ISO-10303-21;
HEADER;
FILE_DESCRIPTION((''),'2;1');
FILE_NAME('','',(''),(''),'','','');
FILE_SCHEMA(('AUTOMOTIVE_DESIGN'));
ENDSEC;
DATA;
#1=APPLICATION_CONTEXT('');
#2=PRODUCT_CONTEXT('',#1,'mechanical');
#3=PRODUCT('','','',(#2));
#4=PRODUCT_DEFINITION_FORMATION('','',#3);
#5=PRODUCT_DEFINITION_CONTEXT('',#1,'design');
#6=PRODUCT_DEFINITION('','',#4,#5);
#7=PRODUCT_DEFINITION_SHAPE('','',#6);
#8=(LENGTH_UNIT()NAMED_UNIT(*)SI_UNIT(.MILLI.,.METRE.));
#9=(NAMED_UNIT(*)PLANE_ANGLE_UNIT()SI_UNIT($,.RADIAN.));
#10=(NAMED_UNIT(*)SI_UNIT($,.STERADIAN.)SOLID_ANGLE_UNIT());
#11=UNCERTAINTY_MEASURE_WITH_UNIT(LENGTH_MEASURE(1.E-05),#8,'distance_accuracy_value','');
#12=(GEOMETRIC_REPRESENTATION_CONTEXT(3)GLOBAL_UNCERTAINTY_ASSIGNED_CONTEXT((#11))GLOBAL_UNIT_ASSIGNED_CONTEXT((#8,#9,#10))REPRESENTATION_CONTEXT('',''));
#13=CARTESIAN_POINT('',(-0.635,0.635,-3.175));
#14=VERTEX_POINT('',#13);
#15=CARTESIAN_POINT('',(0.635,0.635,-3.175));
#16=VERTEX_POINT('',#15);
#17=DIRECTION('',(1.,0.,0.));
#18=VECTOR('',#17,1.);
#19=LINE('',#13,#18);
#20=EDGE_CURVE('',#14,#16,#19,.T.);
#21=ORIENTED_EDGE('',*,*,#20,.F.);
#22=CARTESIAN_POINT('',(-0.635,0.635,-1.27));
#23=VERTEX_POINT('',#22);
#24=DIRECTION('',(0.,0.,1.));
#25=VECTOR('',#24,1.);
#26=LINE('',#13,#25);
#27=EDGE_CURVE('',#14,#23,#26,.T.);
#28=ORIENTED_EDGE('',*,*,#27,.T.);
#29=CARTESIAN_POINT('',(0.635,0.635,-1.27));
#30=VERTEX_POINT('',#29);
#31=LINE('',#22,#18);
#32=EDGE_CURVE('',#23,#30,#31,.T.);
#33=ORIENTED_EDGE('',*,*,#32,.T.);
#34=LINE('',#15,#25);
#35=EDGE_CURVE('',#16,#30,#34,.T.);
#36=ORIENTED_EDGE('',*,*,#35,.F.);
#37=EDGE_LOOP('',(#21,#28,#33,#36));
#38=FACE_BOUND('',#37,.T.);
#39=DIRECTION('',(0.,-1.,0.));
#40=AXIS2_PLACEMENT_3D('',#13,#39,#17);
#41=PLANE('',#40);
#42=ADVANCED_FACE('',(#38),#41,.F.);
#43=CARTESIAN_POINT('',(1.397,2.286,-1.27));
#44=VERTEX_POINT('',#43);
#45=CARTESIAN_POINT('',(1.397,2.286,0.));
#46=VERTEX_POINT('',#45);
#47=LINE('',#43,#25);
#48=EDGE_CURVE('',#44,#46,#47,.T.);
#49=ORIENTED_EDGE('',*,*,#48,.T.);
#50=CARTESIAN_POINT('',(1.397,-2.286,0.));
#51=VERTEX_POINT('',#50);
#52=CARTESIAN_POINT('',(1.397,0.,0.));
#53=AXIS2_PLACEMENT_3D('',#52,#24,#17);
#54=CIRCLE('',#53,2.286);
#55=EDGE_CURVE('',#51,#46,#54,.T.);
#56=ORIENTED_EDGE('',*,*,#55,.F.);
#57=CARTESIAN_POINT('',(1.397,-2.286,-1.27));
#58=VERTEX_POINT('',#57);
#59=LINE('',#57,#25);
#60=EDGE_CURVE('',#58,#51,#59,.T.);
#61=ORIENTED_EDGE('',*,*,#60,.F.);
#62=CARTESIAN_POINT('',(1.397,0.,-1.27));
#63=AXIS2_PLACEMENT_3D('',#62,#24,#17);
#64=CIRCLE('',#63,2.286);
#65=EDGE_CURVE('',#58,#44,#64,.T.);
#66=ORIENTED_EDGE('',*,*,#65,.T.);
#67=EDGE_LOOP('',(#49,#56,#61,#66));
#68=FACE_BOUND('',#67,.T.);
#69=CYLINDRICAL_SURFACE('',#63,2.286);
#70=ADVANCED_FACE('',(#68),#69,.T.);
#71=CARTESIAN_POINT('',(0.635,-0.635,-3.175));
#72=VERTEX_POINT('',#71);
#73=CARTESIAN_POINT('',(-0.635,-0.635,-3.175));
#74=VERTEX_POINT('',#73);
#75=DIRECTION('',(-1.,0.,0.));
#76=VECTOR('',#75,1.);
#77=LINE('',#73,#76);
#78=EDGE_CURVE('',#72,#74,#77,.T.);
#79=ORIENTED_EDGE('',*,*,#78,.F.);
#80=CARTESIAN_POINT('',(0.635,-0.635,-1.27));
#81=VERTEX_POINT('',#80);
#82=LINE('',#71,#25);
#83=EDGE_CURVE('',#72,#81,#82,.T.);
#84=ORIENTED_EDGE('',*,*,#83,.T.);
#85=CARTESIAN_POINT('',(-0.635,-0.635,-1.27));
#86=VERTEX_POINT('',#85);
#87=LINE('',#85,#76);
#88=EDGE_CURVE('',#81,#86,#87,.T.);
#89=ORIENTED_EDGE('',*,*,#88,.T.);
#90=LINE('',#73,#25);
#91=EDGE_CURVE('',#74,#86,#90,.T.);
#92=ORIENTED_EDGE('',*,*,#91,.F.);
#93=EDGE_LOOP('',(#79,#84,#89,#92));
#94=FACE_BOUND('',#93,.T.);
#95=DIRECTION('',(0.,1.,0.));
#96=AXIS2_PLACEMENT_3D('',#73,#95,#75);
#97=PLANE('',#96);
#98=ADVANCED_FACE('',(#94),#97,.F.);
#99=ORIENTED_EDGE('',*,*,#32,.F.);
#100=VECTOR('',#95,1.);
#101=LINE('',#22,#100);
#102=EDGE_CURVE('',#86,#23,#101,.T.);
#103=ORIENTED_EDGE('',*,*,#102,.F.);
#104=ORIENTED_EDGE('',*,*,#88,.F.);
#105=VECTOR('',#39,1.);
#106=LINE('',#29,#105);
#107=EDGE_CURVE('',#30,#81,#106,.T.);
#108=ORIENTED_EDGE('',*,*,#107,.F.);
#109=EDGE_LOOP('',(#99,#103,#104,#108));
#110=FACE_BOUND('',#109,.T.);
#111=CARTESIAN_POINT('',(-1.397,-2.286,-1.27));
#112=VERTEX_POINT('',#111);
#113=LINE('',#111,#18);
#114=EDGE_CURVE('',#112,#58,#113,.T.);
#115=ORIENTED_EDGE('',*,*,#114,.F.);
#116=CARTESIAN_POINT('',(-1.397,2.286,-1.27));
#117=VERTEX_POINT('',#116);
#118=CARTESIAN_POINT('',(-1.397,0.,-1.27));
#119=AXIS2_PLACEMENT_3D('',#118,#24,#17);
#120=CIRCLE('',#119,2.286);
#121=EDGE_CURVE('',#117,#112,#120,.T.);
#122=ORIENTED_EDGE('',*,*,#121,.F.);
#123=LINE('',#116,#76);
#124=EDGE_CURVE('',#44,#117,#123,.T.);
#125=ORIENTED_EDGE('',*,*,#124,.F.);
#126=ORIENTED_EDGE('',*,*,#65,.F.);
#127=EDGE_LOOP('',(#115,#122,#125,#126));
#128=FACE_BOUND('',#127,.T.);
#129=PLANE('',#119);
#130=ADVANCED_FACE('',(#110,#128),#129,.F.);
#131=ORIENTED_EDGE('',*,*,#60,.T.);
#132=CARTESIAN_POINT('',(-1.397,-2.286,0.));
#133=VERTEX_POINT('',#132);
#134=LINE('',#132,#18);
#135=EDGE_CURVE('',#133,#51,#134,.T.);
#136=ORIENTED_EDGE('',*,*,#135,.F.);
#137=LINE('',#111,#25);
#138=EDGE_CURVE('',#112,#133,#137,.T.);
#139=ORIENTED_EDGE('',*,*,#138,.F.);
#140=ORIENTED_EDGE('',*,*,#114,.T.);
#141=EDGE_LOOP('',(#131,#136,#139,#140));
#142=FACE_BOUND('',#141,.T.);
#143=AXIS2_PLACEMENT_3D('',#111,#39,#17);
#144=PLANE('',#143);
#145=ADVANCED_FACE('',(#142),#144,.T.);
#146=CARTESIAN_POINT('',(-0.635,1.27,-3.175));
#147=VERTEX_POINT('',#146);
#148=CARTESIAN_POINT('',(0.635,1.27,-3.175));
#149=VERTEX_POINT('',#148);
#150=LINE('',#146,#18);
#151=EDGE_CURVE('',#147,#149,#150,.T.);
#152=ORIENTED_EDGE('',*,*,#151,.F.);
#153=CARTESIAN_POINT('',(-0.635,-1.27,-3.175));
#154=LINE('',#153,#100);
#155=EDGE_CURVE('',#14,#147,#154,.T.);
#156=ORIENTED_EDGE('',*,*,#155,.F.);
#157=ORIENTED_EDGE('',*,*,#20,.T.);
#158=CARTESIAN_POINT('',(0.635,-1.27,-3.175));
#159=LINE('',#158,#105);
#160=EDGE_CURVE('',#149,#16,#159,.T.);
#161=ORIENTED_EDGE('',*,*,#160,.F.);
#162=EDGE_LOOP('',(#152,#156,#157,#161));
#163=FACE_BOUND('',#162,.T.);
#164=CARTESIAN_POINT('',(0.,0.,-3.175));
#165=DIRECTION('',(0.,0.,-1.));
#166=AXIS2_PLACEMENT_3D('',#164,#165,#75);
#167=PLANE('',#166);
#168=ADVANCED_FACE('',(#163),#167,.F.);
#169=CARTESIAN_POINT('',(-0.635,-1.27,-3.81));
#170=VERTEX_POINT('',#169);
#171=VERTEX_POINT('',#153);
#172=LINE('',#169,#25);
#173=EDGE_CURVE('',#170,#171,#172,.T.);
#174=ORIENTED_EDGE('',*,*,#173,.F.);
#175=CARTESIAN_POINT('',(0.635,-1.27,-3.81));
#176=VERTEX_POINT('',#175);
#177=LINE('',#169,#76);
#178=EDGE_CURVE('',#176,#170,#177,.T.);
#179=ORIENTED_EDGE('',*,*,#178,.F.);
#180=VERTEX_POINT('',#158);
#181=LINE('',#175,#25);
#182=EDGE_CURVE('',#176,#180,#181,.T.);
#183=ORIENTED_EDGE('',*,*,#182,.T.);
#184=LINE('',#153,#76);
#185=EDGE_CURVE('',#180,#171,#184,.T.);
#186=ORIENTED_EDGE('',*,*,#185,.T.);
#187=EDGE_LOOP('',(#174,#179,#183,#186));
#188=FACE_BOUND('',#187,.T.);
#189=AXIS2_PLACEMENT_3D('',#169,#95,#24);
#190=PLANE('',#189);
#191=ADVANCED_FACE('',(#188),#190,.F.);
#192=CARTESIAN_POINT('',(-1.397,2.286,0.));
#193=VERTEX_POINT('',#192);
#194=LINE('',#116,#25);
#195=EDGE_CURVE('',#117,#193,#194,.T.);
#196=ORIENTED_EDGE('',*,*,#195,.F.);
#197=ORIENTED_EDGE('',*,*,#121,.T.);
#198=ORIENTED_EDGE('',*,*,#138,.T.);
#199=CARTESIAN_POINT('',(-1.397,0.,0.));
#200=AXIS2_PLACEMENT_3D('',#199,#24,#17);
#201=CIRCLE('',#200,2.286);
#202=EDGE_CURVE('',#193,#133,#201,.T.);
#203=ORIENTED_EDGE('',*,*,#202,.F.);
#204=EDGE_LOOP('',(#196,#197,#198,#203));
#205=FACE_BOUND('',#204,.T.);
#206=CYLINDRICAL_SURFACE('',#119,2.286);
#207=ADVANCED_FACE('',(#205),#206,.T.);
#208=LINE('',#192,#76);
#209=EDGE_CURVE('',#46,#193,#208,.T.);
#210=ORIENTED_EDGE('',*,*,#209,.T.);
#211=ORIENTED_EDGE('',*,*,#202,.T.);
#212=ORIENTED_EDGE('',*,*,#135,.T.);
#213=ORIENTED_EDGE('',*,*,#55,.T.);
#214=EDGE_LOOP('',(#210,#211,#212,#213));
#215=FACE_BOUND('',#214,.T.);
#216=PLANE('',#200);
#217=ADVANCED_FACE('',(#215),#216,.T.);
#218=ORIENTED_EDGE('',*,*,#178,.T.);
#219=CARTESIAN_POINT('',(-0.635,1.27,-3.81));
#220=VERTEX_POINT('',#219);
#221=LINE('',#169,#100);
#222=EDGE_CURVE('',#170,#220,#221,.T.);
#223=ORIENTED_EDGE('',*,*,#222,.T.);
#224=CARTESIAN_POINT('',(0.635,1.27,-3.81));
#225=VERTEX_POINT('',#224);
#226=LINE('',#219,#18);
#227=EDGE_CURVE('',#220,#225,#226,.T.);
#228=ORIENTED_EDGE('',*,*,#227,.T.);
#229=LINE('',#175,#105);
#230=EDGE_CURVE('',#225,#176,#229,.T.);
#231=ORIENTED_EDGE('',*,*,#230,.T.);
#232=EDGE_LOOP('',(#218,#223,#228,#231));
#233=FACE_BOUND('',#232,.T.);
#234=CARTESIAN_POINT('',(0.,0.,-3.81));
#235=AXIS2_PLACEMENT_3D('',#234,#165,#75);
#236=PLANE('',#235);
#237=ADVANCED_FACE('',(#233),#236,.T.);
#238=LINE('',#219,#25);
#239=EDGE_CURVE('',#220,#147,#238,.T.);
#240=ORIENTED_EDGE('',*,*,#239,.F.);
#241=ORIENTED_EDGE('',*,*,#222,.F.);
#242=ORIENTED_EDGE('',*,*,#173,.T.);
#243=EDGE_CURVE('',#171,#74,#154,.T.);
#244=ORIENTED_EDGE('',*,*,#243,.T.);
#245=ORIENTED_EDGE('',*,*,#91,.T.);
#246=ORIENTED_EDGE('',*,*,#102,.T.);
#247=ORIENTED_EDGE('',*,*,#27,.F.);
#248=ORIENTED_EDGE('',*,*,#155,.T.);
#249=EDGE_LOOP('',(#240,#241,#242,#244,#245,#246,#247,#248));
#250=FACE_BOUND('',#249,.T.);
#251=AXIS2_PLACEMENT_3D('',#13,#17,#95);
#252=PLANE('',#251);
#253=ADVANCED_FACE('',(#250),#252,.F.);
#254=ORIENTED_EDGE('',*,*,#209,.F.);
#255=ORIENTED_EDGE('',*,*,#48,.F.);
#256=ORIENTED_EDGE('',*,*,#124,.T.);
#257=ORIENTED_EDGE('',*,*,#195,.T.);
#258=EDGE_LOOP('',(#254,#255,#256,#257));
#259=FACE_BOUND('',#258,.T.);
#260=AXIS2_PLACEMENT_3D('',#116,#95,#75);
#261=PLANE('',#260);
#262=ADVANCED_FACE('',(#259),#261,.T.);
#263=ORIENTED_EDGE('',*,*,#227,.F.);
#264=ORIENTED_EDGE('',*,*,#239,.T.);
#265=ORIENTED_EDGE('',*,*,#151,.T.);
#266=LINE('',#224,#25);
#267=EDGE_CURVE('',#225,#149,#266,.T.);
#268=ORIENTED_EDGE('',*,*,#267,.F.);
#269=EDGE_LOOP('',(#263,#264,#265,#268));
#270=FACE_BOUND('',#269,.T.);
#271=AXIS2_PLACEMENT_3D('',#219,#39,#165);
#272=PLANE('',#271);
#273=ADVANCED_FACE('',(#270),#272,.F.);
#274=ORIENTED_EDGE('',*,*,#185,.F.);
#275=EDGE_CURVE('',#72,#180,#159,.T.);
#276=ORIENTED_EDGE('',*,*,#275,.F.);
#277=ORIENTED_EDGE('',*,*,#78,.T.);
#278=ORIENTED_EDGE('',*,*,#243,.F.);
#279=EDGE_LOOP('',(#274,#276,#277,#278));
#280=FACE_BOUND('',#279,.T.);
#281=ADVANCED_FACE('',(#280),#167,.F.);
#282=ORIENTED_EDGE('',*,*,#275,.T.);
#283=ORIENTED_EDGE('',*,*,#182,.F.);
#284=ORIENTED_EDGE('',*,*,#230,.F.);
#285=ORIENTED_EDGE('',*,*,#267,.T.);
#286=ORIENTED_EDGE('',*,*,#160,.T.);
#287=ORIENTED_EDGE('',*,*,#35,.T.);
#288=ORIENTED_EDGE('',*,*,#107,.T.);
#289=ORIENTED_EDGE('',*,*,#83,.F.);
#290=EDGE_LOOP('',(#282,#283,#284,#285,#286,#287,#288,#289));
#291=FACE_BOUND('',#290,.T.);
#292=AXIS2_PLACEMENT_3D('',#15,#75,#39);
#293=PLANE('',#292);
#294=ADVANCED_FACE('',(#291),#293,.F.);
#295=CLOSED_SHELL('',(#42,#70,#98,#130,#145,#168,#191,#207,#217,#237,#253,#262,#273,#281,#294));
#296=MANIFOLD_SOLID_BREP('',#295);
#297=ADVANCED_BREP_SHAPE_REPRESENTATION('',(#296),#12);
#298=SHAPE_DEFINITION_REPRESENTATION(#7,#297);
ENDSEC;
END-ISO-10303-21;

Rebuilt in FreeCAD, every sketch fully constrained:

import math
import FreeCAD as App
import Part
import Sketcher
Q = App.Units.Quantity


def add_polygon(sketch, points):
    """Adds a closed chain of lines whose ends are joined by coincident constraints."""
    first, n = sketch.GeometryCount, len(points)
    for a, b in zip(points, points[1:] + points[:1]):
        sketch.addGeometry(Part.LineSegment(App.Vector(*a, 0), App.Vector(*b, 0)), False)
    for i in range(n):
        sketch.addConstraint(Sketcher.Constraint("Coincident", first + i, 2, first + (i + 1) % n, 1))

doc = App.newDocument("Part")
body = doc.addObject("PartDesign::Body", "Body")

# Sketch on XY plane
sketch1 = body.newObject("Sketcher::SketchObject", "Sketch")
sketch1.AttachmentSupport = (doc.getObject("XY_Plane"), [""])
sketch1.MapMode = "FlatFace"
sketch1.addGeometry(Part.LineSegment(App.Vector(1.4, 2.3, 0), App.Vector(-1.4, 2.3, 0)), False)
sketch1.addGeometry(Part.ArcOfCircle(Part.Circle(App.Vector(-1.4, 0, 0), App.Vector(0, 0, 1), 2.3), math.radians(90), math.radians(270)), False)
sketch1.addGeometry(Part.LineSegment(App.Vector(-1.4, -2.3, 0), App.Vector(1.4, -2.3, 0)), False)
sketch1.addGeometry(Part.ArcOfCircle(Part.Circle(App.Vector(1.4, 0, 0), App.Vector(0, 0, 1), 2.3), math.radians(-90), math.radians(90)), False)
sketch1.addConstraint(Sketcher.Constraint("Tangent", 0, 2, 1, 1))
sketch1.addConstraint(Sketcher.Constraint("Tangent", 1, 2, 2, 1))
sketch1.addConstraint(Sketcher.Constraint("Tangent", 2, 2, 3, 1))
sketch1.addConstraint(Sketcher.Constraint("Tangent", 3, 2, 0, 1))
sketch1.addConstraint(Sketcher.Constraint("Horizontal", 0))
sketch1.addConstraint(Sketcher.Constraint("Horizontal", 2))
sketch1.addConstraint(Sketcher.Constraint("Symmetric", 1, 3, 3, 3, -1, 1))
sketch1.addConstraint(Sketcher.Constraint("Radius", 1, Q("0.09 in")))
sketch1.addConstraint(Sketcher.Constraint("DistanceX", 0, 2, 0, 1, Q("0.11 in")))
pad1 = body.newObject("PartDesign::Pad", "Pad")
pad1.Profile = sketch1
pad1.Length = Q("0.05 in")
pad1.Reversed = True

# Sketch on XY plane
sketch2 = body.newObject("Sketcher::SketchObject", "Sketch001")
sketch2.AttachmentSupport = (doc.getObject("XY_Plane"), [""])
sketch2.MapMode = "FlatFace"
sketch2.AttachmentOffset = App.Placement(App.Vector(0, 0, -0.05 * 25.4), App.Rotation())
add_polygon(sketch2, [(0.6, 0.6), (0.6, -0.6), (-0.6, -0.6), (-0.6, 0.6)])  # lines 0-3
sketch2.addConstraint(Sketcher.Constraint("Vertical", 0))
sketch2.addConstraint(Sketcher.Constraint("Horizontal", 1))
sketch2.addConstraint(Sketcher.Constraint("Vertical", 2))
sketch2.addConstraint(Sketcher.Constraint("Horizontal", 3))
sketch2.addConstraint(Sketcher.Constraint("Symmetric", 0, 2, 2, 2, -1, 1))
sketch2.addConstraint(Sketcher.Constraint("Equal", 3, 0))
sketch2.addConstraint(Sketcher.Constraint("DistanceX", 1, 2, 1, 1, Q("0.05 in")))
pad2 = body.newObject("PartDesign::Pad", "Pad001")
pad2.Profile = sketch2
pad2.Length = Q("0.075 in")
pad2.Reversed = True

# Sketch on XY plane
sketch3 = body.newObject("Sketcher::SketchObject", "Sketch002")
sketch3.AttachmentSupport = (doc.getObject("XY_Plane"), [""])
sketch3.MapMode = "FlatFace"
sketch3.AttachmentOffset = App.Placement(App.Vector(0, 0, -0.125 * 25.4), App.Rotation())
add_polygon(sketch3, [(0.6, 1.3), (0.6, -1.3), (-0.6, -1.3), (-0.6, 1.3)])  # lines 0-3
sketch3.addConstraint(Sketcher.Constraint("Vertical", 0))
sketch3.addConstraint(Sketcher.Constraint("Horizontal", 1))
sketch3.addConstraint(Sketcher.Constraint("Vertical", 2))
sketch3.addConstraint(Sketcher.Constraint("Horizontal", 3))
sketch3.addConstraint(Sketcher.Constraint("Symmetric", 0, 2, 2, 2, -1, 1))
sketch3.addConstraint(Sketcher.Constraint("DistanceY", 0, 2, 0, 1, Q("0.1 in")))
sketch3.addConstraint(Sketcher.Constraint("DistanceX", 1, 2, 1, 1, Q("0.05 in")))
pad3 = body.newObject("PartDesign::Pad", "Pad002")
pad3.Profile = sketch3
pad3.Length = Q("0.025 in")
pad3.Reversed = True

doc.recompute()
